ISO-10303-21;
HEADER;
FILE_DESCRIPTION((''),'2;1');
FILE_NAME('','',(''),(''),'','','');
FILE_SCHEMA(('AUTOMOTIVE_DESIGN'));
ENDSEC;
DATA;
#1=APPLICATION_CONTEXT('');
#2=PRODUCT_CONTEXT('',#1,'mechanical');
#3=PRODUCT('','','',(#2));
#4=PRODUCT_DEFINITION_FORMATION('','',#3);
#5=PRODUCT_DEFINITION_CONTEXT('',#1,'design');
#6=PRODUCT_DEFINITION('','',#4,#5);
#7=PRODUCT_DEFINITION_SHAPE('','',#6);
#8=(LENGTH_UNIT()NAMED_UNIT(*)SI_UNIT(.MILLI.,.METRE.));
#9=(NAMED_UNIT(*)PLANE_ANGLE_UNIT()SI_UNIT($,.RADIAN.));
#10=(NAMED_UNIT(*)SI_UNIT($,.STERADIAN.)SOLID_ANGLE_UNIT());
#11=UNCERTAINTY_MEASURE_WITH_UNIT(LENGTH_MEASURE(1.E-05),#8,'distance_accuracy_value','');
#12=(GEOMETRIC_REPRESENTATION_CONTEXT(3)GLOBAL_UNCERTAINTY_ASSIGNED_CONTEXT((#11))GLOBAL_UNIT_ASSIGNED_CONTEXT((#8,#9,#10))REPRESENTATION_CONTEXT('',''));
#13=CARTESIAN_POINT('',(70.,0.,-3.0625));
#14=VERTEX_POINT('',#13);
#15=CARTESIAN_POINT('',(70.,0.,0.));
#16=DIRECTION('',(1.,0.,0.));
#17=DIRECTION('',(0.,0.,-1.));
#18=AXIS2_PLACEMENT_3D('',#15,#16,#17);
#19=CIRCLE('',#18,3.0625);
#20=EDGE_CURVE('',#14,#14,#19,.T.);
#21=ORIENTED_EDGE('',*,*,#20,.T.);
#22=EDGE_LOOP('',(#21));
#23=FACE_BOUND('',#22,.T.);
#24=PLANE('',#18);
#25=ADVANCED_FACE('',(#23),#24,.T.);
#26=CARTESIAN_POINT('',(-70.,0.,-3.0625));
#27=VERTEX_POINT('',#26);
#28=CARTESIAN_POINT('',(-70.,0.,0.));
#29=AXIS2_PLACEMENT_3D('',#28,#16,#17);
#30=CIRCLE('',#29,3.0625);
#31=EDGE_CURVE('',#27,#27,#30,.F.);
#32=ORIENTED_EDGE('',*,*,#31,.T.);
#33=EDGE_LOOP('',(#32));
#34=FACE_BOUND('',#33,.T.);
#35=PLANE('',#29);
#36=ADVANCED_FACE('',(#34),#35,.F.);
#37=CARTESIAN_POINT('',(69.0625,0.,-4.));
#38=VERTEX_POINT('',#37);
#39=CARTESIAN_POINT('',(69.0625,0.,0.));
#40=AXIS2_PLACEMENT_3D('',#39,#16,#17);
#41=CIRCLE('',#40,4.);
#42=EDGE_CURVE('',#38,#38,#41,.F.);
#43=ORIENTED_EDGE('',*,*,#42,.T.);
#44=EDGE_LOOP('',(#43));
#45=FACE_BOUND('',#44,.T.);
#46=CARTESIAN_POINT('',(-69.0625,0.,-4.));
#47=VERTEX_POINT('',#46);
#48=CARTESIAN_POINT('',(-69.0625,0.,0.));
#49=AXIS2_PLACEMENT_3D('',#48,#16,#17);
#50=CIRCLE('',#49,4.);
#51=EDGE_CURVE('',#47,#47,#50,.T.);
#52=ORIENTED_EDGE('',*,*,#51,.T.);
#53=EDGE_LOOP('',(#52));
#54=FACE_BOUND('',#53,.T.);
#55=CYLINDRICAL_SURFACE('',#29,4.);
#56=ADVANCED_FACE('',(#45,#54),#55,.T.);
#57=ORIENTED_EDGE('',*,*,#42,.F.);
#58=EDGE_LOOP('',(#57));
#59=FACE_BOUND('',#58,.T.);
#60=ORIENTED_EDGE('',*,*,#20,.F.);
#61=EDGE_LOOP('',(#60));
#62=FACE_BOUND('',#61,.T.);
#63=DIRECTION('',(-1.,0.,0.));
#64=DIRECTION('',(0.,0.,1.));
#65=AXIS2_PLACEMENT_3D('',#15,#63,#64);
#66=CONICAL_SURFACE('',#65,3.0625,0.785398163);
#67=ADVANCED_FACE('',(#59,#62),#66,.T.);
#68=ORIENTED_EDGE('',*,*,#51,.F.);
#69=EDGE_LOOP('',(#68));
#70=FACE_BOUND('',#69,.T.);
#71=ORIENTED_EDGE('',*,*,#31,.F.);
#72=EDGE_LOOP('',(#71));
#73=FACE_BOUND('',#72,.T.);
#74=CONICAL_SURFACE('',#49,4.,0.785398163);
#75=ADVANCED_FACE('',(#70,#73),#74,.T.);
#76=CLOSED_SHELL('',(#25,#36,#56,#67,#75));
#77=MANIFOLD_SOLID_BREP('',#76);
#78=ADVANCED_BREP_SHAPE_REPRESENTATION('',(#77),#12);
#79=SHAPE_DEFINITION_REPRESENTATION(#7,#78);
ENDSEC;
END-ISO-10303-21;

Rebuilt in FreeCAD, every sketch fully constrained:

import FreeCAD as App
import Part
import Sketcher

V = App.Vector
Q = App.Units.Quantity


def edges_at(feature, points):
    """Names of the edges that pass closest to the given points."""
    edges = feature.Shape.Edges
    near = lambda p: min(range(len(edges)), key=lambda i: edges[i].distToShape(Part.Vertex(*p))[0])
    return sorted({f"Edge{near(p) + 1}" for p in points})

doc = App.newDocument("Part")
body = doc.addObject("PartDesign::Body", "Body")

# Sketch on YZ plane
sketch1 = doc.addObject("Sketcher::SketchObject", "Sketch")
body.addObject(sketch1)
sketch1.AttachmentSupport = (doc.YZ_Plane, [""])
sketch1.MapMode = "FlatFace"
sketch1.addGeometry(Part.Circle(V(0, 0, 0), V(0, 0, 1), 4), False)
sketch1.addConstraint(Sketcher.Constraint("Coincident", 0, 3, -1, 1))
sketch1.addConstraint(Sketcher.Constraint("Diameter", 0, Q("8 mm")))
pad1 = doc.addObject("PartDesign::Pad", "Pad")
body.addObject(pad1)
pad1.Profile = sketch1
pad1.Type = "TwoLengths"
pad1.Length = 70
pad1.Length2 = 70
doc.recompute()

chamfer = doc.addObject("PartDesign::Chamfer", "Chamfer")
body.addObject(chamfer)
chamfer.Base = (pad1, edges_at(pad1, [(-70, 0, 4), (70, 0, 4)]))
chamfer.Size = 0.9375

doc.recompute()
